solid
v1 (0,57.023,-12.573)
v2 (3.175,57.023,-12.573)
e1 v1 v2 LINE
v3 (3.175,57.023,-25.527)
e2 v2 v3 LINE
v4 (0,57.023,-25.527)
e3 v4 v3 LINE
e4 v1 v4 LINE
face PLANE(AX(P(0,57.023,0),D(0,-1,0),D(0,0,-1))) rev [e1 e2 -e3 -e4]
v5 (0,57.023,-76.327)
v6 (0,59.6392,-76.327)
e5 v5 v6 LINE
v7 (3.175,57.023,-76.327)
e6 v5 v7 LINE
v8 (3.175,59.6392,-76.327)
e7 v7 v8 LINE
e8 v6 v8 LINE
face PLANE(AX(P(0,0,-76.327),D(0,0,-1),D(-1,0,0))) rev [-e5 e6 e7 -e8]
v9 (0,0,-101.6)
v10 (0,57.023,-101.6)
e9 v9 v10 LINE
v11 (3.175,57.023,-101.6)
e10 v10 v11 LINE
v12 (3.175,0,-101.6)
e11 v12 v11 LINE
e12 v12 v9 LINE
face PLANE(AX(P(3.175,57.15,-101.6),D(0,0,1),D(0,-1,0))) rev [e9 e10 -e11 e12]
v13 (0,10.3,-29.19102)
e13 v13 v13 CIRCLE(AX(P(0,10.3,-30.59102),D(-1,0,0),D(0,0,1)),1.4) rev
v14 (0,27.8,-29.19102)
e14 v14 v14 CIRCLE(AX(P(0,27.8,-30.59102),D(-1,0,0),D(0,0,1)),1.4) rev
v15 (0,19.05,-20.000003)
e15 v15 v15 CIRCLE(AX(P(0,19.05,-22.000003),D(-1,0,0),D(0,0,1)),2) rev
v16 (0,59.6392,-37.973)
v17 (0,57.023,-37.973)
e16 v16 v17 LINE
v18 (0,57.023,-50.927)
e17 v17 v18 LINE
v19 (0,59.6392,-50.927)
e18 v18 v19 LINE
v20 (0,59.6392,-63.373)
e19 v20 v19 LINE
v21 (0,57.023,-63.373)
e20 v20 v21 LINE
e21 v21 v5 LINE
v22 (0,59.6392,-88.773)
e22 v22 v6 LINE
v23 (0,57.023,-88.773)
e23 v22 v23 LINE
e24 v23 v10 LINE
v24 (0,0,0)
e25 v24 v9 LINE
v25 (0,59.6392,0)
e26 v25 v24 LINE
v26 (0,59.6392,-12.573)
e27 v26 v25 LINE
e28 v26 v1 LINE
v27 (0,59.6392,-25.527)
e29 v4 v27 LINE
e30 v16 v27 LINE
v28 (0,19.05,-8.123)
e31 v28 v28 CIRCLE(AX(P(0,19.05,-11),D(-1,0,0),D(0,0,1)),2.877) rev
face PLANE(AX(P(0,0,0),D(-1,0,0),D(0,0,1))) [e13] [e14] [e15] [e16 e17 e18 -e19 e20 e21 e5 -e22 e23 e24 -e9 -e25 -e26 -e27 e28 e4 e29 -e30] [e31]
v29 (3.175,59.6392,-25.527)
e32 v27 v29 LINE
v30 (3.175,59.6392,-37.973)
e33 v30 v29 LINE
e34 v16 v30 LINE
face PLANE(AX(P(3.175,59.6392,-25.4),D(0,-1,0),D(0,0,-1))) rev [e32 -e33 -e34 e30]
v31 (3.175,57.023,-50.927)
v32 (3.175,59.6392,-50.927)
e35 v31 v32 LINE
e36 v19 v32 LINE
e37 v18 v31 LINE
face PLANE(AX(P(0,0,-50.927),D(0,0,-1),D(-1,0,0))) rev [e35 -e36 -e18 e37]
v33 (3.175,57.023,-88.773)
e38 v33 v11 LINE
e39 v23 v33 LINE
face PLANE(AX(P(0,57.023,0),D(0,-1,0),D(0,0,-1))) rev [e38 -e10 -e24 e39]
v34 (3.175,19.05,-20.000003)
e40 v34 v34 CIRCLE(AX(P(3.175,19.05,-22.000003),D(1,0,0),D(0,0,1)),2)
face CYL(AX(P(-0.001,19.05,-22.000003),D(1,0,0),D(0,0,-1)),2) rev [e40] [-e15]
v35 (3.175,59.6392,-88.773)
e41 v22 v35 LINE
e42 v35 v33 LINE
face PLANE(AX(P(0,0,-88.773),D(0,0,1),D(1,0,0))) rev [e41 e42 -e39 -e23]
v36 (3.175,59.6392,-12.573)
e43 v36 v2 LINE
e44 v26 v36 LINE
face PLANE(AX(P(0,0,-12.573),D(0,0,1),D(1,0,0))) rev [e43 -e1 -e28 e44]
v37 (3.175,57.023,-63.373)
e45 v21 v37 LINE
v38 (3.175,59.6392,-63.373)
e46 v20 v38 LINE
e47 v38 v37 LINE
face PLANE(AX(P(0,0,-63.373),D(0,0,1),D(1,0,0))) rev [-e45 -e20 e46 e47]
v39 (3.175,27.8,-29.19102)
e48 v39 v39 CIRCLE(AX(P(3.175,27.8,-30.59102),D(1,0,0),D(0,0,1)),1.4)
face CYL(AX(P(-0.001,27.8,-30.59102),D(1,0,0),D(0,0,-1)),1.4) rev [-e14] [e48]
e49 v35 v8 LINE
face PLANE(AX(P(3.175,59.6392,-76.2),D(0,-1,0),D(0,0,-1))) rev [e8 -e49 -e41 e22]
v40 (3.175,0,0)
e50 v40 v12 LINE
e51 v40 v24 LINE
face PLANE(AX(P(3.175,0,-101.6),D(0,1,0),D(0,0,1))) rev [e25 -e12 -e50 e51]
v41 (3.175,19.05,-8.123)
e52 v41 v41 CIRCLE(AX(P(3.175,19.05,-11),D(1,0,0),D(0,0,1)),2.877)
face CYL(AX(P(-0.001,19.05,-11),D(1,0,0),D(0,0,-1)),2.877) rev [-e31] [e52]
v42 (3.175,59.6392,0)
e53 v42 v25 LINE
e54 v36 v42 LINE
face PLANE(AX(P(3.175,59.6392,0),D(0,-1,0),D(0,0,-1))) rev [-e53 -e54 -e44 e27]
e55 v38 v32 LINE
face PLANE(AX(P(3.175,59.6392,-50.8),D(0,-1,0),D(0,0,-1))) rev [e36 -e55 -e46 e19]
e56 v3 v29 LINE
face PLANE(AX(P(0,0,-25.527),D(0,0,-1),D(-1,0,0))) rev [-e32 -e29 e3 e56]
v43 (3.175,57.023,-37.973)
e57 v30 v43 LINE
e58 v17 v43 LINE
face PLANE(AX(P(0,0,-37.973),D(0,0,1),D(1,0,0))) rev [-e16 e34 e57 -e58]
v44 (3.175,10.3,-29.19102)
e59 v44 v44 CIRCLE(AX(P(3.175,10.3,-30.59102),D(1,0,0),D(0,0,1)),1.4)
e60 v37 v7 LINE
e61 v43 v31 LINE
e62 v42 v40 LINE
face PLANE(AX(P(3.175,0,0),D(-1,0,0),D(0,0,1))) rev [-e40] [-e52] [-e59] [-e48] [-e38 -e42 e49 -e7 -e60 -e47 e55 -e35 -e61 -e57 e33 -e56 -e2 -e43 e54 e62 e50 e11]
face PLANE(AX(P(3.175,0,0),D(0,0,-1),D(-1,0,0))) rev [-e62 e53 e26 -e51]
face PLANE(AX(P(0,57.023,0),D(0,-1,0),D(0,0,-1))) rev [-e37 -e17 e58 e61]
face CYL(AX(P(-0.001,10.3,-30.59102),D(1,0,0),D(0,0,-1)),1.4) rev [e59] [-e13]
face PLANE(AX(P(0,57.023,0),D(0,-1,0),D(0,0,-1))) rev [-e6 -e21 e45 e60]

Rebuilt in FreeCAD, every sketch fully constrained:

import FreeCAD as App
import Part
import Sketcher
Q = App.Units.Quantity


def add_polygon(sketch, points):
    """Adds a closed chain of lines whose ends are joined by coincident constraints."""
    first, n = sketch.GeometryCount, len(points)
    for a, b in zip(points, points[1:] + points[:1]):
        sketch.addGeometry(Part.LineSegment(App.Vector(*a, 0), App.Vector(*b, 0)), False)
    for i in range(n):
        sketch.addConstraint(Sketcher.Constraint("Coincident", first + i, 2, first + (i + 1) % n, 1))

doc = App.newDocument("Part")
body = doc.addObject("PartDesign::Body", "Body")

# Sketch on YZ plane
sketch1 = doc.addObject("Sketcher::SketchObject", "Sketch")
body.addObject(sketch1)
sketch1.AttachmentSupport = (doc.YZ_Plane, [""])
sketch1.MapMode = "FlatFace"
add_polygon(sketch1, [(59.6, 0), (0, 0), (0, -101.6), (57.1, -101.6), (57.1, -88.9), (59.6, -88.9), (59.6, -76.2), (57.1, -76.2), (57.1, -63.5), (59.6, -63.5), (59.6, -50.8), (57.1, -50.8), (57.1, -38.1), (59.6, -38.1), (59.6, -25.4), (57.1, -25.4), (57.1, -12.7), (59.6, -12.7)])  # lines 0-17
sketch1.addConstraint(Sketcher.Constraint("Horizontal", 0))
sketch1.addConstraint(Sketcher.Constraint("Vertical", 1))
sketch1.addConstraint(Sketcher.Constraint("Horizontal", 2))
sketch1.addConstraint(Sketcher.Constraint("Vertical", 3))
sketch1.addConstraint(Sketcher.Constraint("Horizontal", 4))
sketch1.addConstraint(Sketcher.Constraint("Vertical", 5))
sketch1.addConstraint(Sketcher.Constraint("Horizontal", 6))
sketch1.addConstraint(Sketcher.Constraint("Vertical", 7))
sketch1.addConstraint(Sketcher.Constraint("Horizontal", 8))
sketch1.addConstraint(Sketcher.Constraint("Vertical", 9))
sketch1.addConstraint(Sketcher.Constraint("Horizontal", 10))
sketch1.addConstraint(Sketcher.Constraint("Vertical", 11))
sketch1.addConstraint(Sketcher.Constraint("Horizontal", 12))
sketch1.addConstraint(Sketcher.Constraint("Vertical", 13))
sketch1.addConstraint(Sketcher.Constraint("Horizontal", 14))
sketch1.addConstraint(Sketcher.Constraint("Vertical", 15))
sketch1.addConstraint(Sketcher.Constraint("Horizontal", 16))
sketch1.addConstraint(Sketcher.Constraint("Vertical", 17))
sketch1.addConstraint(Sketcher.Constraint("Coincident", 0, 2, -1, 1))
sketch1.addConstraint(Sketcher.Constraint("Vertical", 3, 2, 6, 2))
sketch1.addConstraint(Sketcher.Constraint("Vertical", 5, 2, 8, 2))
sketch1.addConstraint(Sketcher.Constraint("Vertical", 7, 2, 10, 2))
sketch1.addConstraint(Sketcher.Constraint("Vertical", 9, 2, 12, 2))
sketch1.addConstraint(Sketcher.Constraint("Vertical", 11, 2, 14, 2))
sketch1.addConstraint(Sketcher.Constraint("Vertical", 13, 2, 16, 2))
sketch1.addConstraint(Sketcher.Constraint("Equal", 3, 5))
sketch1.addConstraint(Sketcher.Constraint("Equal", 5, 7))
sketch1.addConstraint(Sketcher.Constraint("Equal", 7, 9))
sketch1.addConstraint(Sketcher.Constraint("Equal", 9, 11))
sketch1.addConstraint(Sketcher.Constraint("Equal", 11, 13))
sketch1.addConstraint(Sketcher.Constraint("Equal", 13, 15))
sketch1.addConstraint(Sketcher.Constraint("Equal", 15, 17))
sketch1.addConstraint(Sketcher.Constraint("DistanceY", 1, 2, 1, 1, Q("4 in")))
sketch1.addConstraint(Sketcher.Constraint("DistanceX", 2, 1, 2, 2, Q("2.25 in")))
sketch1.addConstraint(Sketcher.Constraint("DistanceX", 0, 2, 0, 1, Q("2.348 in")))
pad1 = doc.addObject("PartDesign::Pad", "Pad")
body.addObject(pad1)
pad1.Profile = sketch1
pad1.Length = Q("0.125 in")

# Sketch on YZ plane
sketch2 = doc.addObject("Sketcher::SketchObject", "Sketch001")
body.addObject(sketch2)
sketch2.AttachmentSupport = (doc.YZ_Plane, [""])
sketch2.MapMode = "FlatFace"
sketch2.AttachmentOffset = App.Placement(App.Vector(0, 0, 0.125 * 25.4), App.Rotation())
sketch2.addGeometry(Part.Circle(App.Vector(10.3, -30.6, 0), App.Vector(0, 0, 1), 1.4), False)
sketch2.addConstraint(Sketcher.Constraint("Diameter", 0, 2.8))
sketch2.addConstraint(Sketcher.Constraint("DistanceX", -1, 1, 0, 3, 10.3))
sketch2.addConstraint(Sketcher.Constraint("DistanceY", 0, 3, -1, 1, 30.59102))
pocket1 = doc.addObject("PartDesign::Pocket", "Pocket")
body.addObject(pocket1)
pocket1.Profile = sketch2
pocket1.Type = "UpToFirst"

# Sketch on YZ plane
sketch3 = doc.addObject("Sketcher::SketchObject", "Sketch002")
body.addObject(sketch3)
sketch3.AttachmentSupport = (doc.YZ_Plane, [""])
sketch3.MapMode = "FlatFace"
sketch3.AttachmentOffset = App.Placement(App.Vector(0, 0, 0.125 * 25.4), App.Rotation())
sketch3.addGeometry(Part.Circle(App.Vector(27.8, -30.6, 0), App.Vector(0, 0, 1), 1.4), False)
sketch3.addConstraint(Sketcher.Constraint("Diameter", 0, 2.8))
sketch3.addConstraint(Sketcher.Constraint("DistanceX", -1, 1, 0, 3, 27.8))
sketch3.addConstraint(Sketcher.Constraint("DistanceY", 0, 3, -1, 1, 30.59102))
pocket2 = doc.addObject("PartDesign::Pocket", "Pocket001")
body.addObject(pocket2)
pocket2.Profile = sketch3
pocket2.Type = "UpToFirst"

# Sketch on YZ plane
sketch4 = doc.addObject("Sketcher::SketchObject", "Sketch003")
body.addObject(sketch4)
sketch4.AttachmentSupport = (doc.YZ_Plane, [""])
sketch4.MapMode = "FlatFace"
sketch4.AttachmentOffset = App.Placement(App.Vector(0, 0, 0.125 * 25.4), App.Rotation())
sketch4.addGeometry(Part.Circle(App.Vector(19.1, -22, 0), App.Vector(0, 0, 1), 2), False)
sketch4.addConstraint(Sketcher.Constraint("Diameter", 0, 4.0))
sketch4.addConstraint(Sketcher.Constraint("DistanceX", -1, 1, 0, 3, Q("0.75 in")))
sketch4.addConstraint(Sketcher.Constraint("DistanceY", 0, 3, -1, 1, 22.000003))
pocket3 = doc.addObject("PartDesign::Pocket", "Pocket002")
body.addObject(pocket3)
pocket3.Profile = sketch4
pocket3.Type = "UpToFirst"

# Sketch on YZ plane
sketch5 = doc.addObject("Sketcher::SketchObject", "Sketch004")
body.addObject(sketch5)
sketch5.AttachmentSupport = (doc.YZ_Plane, [""])
sketch5.MapMode = "FlatFace"
sketch5.AttachmentOffset = App.Placement(App.Vector(0, 0, 0.125 * 25.4), App.Rotation())
sketch5.addGeometry(Part.Circle(App.Vector(19.1, -11, 0), App.Vector(0, 0, 1), 2.9), False)
sketch5.addConstraint(Sketcher.Constraint("Diameter", 0, 5.754))
sketch5.addConstraint(Sketcher.Constraint("DistanceX", -1, 1, 0, 3, Q("0.75 in")))
sketch5.addConstraint(Sketcher.Constraint("DistanceY", 0, 3, -1, 1, 11.0))
pocket4 = doc.addObject("PartDesign::Pocket", "Pocket003")
body.addObject(pocket4)
pocket4.Profile = sketch5
pocket4.Type = "UpToFirst"

# Sketch on YZ plane
sketch6 = doc.addObject("Sketcher::SketchObject", "Sketch005")
body.addObject(sketch6)
sketch6.AttachmentSupport = (doc.YZ_Plane, [""])
sketch6.MapMode = "FlatFace"
sketch6.AttachmentOffset = App.Placement(App.Vector(0, 0, 0.125 * 25.4), App.Rotation())
add_polygon(sketch6, [(57.15, -12.7), (59.64, -12.7), (59.64, -12.57), (57.02, -12.57), (57.02, -25.53), (59.64, -25.53), (59.64, -25.4), (57.15, -25.4)])  # lines 0-7
add_polygon(sketch6, [(59.64, -38.1), (59.64, -37.97), (57.02, -37.97), (57.02, -50.93), (59.64, -50.93), (59.64, -50.8), (57.15, -50.8), (57.15, -38.1)])  # lines 8-15
add_polygon(sketch6, [(59.64, -63.5), (59.64, -63.37), (57.02, -63.37), (57.02, -76.33), (59.64, -76.33), (59.64, -76.2), (57.15, -76.2), (57.15, -63.5)])  # lines 16-23
add_polygon(sketch6, [(59.64, -88.9), (59.64, -88.77), (57.02, -88.77), (57.02, -101.6), (57.15, -101.6), (57.15, -88.9)])  # lines 24-29
sketch6.addConstraint(Sketcher.Constraint("Horizontal", 0))
sketch6.addConstraint(Sketcher.Constraint("Vertical", 1))
sketch6.addConstraint(Sketcher.Constraint("Horizontal", 2))
sketch6.addConstraint(Sketcher.Constraint("Vertical", 3))
sketch6.addConstraint(Sketcher.Constraint("Horizontal", 4))
sketch6.addConstraint(Sketcher.Constraint("Vertical", 5))
sketch6.addConstraint(Sketcher.Constraint("Horizontal", 6))
sketch6.addConstraint(Sketcher.Constraint("Vertical", 7))
sketch6.addConstraint(Sketcher.Constraint("Vertical", 8))
sketch6.addConstraint(Sketcher.Constraint("Horizontal", 9))
sketch6.addConstraint(Sketcher.Constraint("Vertical", 10))
sketch6.addConstraint(Sketcher.Constraint("Horizontal", 11))
sketch6.addConstraint(Sketcher.Constraint("Vertical", 12))
sketch6.addConstraint(Sketcher.Constraint("Horizontal", 13))
sketch6.addConstraint(Sketcher.Constraint("Vertical", 14))
sketch6.addConstraint(Sketcher.Constraint("Horizontal", 15))
sketch6.addConstraint(Sketcher.Constraint("Vertical", 16))
sketch6.addConstraint(Sketcher.Constraint("Horizontal", 17))
sketch6.addConstraint(Sketcher.Constraint("Vertical", 18))
sketch6.addConstraint(Sketcher.Constraint("Horizontal", 19))
sketch6.addConstraint(Sketcher.Constraint("Vertical", 20))
sketch6.addConstraint(Sketcher.Constraint("Horizontal", 21))
sketch6.addConstraint(Sketcher.Constraint("Vertical", 22))
sketch6.addConstraint(Sketcher.Constraint("Horizontal", 23))
sketch6.addConstraint(Sketcher.Constraint("Vertical", 24))
sketch6.addConstraint(Sketcher.Constraint("Horizontal", 25))
sketch6.addConstraint(Sketcher.Constraint("Vertical", 26))
sketch6.addConstraint(Sketcher.Constraint("Horizontal", 27))
sketch6.addConstraint(Sketcher.Constraint("Vertical", 28))
sketch6.addConstraint(Sketcher.Constraint("Horizontal", 29))
sketch6.addConstraint(Sketcher.Constraint("Vertical", 1, 2, 4, 2))
sketch6.addConstraint(Sketcher.Constraint("Vertical", 5, 2, 8, 2))
sketch6.addConstraint(Sketcher.Constraint("Vertical", 3, 2, 9, 2))
sketch6.addConstraint(Sketcher.Constraint("Vertical", 8, 2, 11, 2))
sketch6.addConstraint(Sketcher.Constraint("Vertical", 7, 2, 13, 2))
sketch6.addConstraint(Sketcher.Constraint("Vertical", 15, 2, 16, 2))
sketch6.addConstraint(Sketcher.Constraint("Vertical", 10, 2, 17, 2))
sketch6.addConstraint(Sketcher.Constraint("Vertical", 16, 2, 19, 2))
sketch6.addConstraint(Sketcher.Constraint("Vertical", 14, 2, 21, 2))
sketch6.addConstraint(Sketcher.Constraint("Vertical", 23, 2, 24, 2))
sketch6.addConstraint(Sketcher.Constraint("Vertical", 18, 2, 25, 2))
sketch6.addConstraint(Sketcher.Constraint("Vertical", 22, 2, 27, 2))
sketch6.addConstraint(Sketcher.Constraint("Equal", 27, 1))
sketch6.addConstraint(Sketcher.Constraint("Equal", 1, 5))
sketch6.addConstraint(Sketcher.Constraint("Equal", 5, 8))
sketch6.addConstraint(Sketcher.Constraint("Equal", 3, 10))
sketch6.addConstraint(Sketcher.Constraint("Equal", 8, 12))
sketch6.addConstraint(Sketcher.Constraint("Equal", 12, 16))
sketch6.addConstraint(Sketcher.Constraint("Equal", 10, 18))
sketch6.addConstraint(Sketcher.Constraint("Equal", 16, 20))
sketch6.addConstraint(Sketcher.Constraint("Equal", 20, 24))
sketch6.addConstraint(Sketcher.Constraint("Equal", 22, 28))
sketch6.addConstraint(Sketcher.Constraint("DistanceY", 7, 1, 7, 2, Q("0.5 in")))
sketch6.addConstraint(Sketcher.Constraint("DistanceY", 5, 2, -1, 1, Q("1 in")))
sketch6.addConstraint(Sketcher.Constraint("DistanceY", 12, 2, -1, 1, Q("2 in")))
sketch6.addConstraint(Sketcher.Constraint("DistanceY", 20, 2, -1, 1, Q("3 in")))
sketch6.addConstraint(Sketcher.Constraint("DistanceY", 26, 2, -1, 1, Q("4 in")))
sketch6.addConstraint(Sketcher.Constraint("DistanceY", 3, 2, 3, 1, Q("0.51 in")))
sketch6.addConstraint(Sketcher.Constraint("DistanceX", 0, 1, 0, 2, Q("0.098 in")))
sketch6.addConstraint(Sketcher.Constraint("DistanceX", -1, 1, 6, 2, Q("2.25 in")))
pocket5 = doc.addObject("PartDesign::Pocket", "Pocket004")
body.addObject(pocket5)
pocket5.Profile = sketch6
pocket5.Type = "ThroughAll"

doc.recompute()
